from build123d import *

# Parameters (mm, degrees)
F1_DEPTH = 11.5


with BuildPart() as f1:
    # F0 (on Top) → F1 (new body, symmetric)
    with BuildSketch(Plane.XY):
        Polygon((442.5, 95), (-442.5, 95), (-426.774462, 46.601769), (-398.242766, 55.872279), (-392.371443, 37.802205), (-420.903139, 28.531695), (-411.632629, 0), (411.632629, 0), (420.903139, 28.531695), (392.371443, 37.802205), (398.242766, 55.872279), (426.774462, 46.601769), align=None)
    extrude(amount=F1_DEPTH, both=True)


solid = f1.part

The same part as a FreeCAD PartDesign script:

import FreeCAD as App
import Part
import Sketcher
from FreeCAD import Vector
Q = App.Units.Quantity

doc = App.newDocument("Part")
body = doc.addObject("PartDesign::Body", "Body")

sketch1 = doc.addObject("Sketcher::SketchObject", "Sketch")
body.addObject(sketch1)
sketch1.AttachmentSupport = (doc.XY_Plane, [""])
sketch1.MapMode = "FlatFace"
sketch1.addGeometry(Part.LineSegment(Vector(442.5, 95, 0), Vector(-442.5, 95, 0)), False)
sketch1.addGeometry(Part.LineSegment(Vector(-442.5, 95, 0), Vector(-426.774462, 46.601769, 0)), False)
sketch1.addGeometry(Part.LineSegment(Vector(-426.774462, 46.601769, 0), Vector(-398.242766, 55.872279, 0)), False)
sketch1.addGeometry(Part.LineSegment(Vector(-398.242766, 55.872279, 0), Vector(-392.371443, 37.802205, 0)), False)
sketch1.addGeometry(Part.LineSegment(Vector(-392.371443, 37.802205, 0), Vector(-420.903139, 28.531695, 0)), False)
sketch1.addGeometry(Part.LineSegment(Vector(-420.903139, 28.531695, 0), Vector(-411.632629, 0, 0)), False)
sketch1.addGeometry(Part.LineSegment(Vector(-411.632629, 0, 0), Vector(411.632629, 0, 0)), False)
sketch1.addGeometry(Part.LineSegment(Vector(411.632629, 0, 0), Vector(420.903139, 28.531695, 0)), False)
sketch1.addGeometry(Part.LineSegment(Vector(420.903139, 28.531695, 0), Vector(392.371443, 37.802205, 0)), False)
sketch1.addGeometry(Part.LineSegment(Vector(392.371443, 37.802205, 0), Vector(398.242766, 55.872279, 0)), False)
sketch1.addGeometry(Part.LineSegment(Vector(398.242766, 55.872279, 0), Vector(426.774462, 46.601769, 0)), False)
sketch1.addGeometry(Part.LineSegment(Vector(426.774462, 46.601769, 0), Vector(442.5, 95, 0)), False)
sketch1.addConstraint(Sketcher.Constraint("Coincident", 0, 2, 1, 1))
sketch1.addConstraint(Sketcher.Constraint("Coincident", 1, 2, 2, 1))
sketch1.addConstraint(Sketcher.Constraint("Coincident", 2, 2, 3, 1))
sketch1.addConstraint(Sketcher.Constraint("Coincident", 3, 2, 4, 1))
sketch1.addConstraint(Sketcher.Constraint("Coincident", 4, 2, 5, 1))
sketch1.addConstraint(Sketcher.Constraint("Coincident", 5, 2, 6, 1))
sketch1.addConstraint(Sketcher.Constraint("Coincident", 6, 2, 7, 1))
sketch1.addConstraint(Sketcher.Constraint("Coincident", 7, 2, 8, 1))
sketch1.addConstraint(Sketcher.Constraint("Coincident", 8, 2, 9, 1))
sketch1.addConstraint(Sketcher.Constraint("Coincident", 9, 2, 10, 1))
sketch1.addConstraint(Sketcher.Constraint("Coincident", 10, 2, 11, 1))
sketch1.addConstraint(Sketcher.Constraint("Coincident", 11, 2, 0, 1))
sketch1.addConstraint(Sketcher.Constraint("Horizontal", 0))
sketch1.addConstraint(Sketcher.Constraint("Horizontal", 6))
sketch1.addConstraint(Sketcher.Constraint("Symmetric", 5, 2, 6, 2, -1, 1))
sketch1.addConstraint(Sketcher.Constraint("Symmetric", 4, 2, 7, 2, -2))
sketch1.addConstraint(Sketcher.Constraint("Symmetric", 3, 2, 8, 2, -2))
sketch1.addConstraint(Sketcher.Constraint("Symmetric", 2, 2, 9, 2, -2))
sketch1.addConstraint(Sketcher.Constraint("Symmetric", 1, 2, 10, 2, -2))
sketch1.addConstraint(Sketcher.Constraint("Perpendicular", 1, 2))
sketch1.addConstraint(Sketcher.Constraint("Perpendicular", 2, 3))
sketch1.addConstraint(Sketcher.Constraint("Perpendicular", 3, 4))
sketch1.addConstraint(Sketcher.Constraint("Perpendicular", 4, 5))
sketch1.addConstraint(Sketcher.Constraint("Perpendicular", 10, 11))
sketch1.addConstraint(Sketcher.Constraint("Equal", 2, 4))
sketch1.addConstraint(Sketcher.Constraint("Equal", 4, 5))
sketch1.addConstraint(Sketcher.Constraint("DistanceX", 0, 2, 0, 1, 885.0))
sketch1.addConstraint(Sketcher.Constraint("Angle", 1, Q("-72.000001 deg")))
sketch1.addConstraint(Sketcher.Constraint("Distance", 2, 30.000001))
sketch1.addConstraint(Sketcher.Constraint("Distance", 3, 19.0))
sketch1.addConstraint(Sketcher.Constraint("DistanceY", -1, 1, 0, 2, 95.0))
pad1 = doc.addObject("PartDesign::Pad", "Pad")
body.addObject(pad1)
pad1.Profile = sketch1
pad1.Length = 23
pad1.Midplane = True

doc.recompute()
